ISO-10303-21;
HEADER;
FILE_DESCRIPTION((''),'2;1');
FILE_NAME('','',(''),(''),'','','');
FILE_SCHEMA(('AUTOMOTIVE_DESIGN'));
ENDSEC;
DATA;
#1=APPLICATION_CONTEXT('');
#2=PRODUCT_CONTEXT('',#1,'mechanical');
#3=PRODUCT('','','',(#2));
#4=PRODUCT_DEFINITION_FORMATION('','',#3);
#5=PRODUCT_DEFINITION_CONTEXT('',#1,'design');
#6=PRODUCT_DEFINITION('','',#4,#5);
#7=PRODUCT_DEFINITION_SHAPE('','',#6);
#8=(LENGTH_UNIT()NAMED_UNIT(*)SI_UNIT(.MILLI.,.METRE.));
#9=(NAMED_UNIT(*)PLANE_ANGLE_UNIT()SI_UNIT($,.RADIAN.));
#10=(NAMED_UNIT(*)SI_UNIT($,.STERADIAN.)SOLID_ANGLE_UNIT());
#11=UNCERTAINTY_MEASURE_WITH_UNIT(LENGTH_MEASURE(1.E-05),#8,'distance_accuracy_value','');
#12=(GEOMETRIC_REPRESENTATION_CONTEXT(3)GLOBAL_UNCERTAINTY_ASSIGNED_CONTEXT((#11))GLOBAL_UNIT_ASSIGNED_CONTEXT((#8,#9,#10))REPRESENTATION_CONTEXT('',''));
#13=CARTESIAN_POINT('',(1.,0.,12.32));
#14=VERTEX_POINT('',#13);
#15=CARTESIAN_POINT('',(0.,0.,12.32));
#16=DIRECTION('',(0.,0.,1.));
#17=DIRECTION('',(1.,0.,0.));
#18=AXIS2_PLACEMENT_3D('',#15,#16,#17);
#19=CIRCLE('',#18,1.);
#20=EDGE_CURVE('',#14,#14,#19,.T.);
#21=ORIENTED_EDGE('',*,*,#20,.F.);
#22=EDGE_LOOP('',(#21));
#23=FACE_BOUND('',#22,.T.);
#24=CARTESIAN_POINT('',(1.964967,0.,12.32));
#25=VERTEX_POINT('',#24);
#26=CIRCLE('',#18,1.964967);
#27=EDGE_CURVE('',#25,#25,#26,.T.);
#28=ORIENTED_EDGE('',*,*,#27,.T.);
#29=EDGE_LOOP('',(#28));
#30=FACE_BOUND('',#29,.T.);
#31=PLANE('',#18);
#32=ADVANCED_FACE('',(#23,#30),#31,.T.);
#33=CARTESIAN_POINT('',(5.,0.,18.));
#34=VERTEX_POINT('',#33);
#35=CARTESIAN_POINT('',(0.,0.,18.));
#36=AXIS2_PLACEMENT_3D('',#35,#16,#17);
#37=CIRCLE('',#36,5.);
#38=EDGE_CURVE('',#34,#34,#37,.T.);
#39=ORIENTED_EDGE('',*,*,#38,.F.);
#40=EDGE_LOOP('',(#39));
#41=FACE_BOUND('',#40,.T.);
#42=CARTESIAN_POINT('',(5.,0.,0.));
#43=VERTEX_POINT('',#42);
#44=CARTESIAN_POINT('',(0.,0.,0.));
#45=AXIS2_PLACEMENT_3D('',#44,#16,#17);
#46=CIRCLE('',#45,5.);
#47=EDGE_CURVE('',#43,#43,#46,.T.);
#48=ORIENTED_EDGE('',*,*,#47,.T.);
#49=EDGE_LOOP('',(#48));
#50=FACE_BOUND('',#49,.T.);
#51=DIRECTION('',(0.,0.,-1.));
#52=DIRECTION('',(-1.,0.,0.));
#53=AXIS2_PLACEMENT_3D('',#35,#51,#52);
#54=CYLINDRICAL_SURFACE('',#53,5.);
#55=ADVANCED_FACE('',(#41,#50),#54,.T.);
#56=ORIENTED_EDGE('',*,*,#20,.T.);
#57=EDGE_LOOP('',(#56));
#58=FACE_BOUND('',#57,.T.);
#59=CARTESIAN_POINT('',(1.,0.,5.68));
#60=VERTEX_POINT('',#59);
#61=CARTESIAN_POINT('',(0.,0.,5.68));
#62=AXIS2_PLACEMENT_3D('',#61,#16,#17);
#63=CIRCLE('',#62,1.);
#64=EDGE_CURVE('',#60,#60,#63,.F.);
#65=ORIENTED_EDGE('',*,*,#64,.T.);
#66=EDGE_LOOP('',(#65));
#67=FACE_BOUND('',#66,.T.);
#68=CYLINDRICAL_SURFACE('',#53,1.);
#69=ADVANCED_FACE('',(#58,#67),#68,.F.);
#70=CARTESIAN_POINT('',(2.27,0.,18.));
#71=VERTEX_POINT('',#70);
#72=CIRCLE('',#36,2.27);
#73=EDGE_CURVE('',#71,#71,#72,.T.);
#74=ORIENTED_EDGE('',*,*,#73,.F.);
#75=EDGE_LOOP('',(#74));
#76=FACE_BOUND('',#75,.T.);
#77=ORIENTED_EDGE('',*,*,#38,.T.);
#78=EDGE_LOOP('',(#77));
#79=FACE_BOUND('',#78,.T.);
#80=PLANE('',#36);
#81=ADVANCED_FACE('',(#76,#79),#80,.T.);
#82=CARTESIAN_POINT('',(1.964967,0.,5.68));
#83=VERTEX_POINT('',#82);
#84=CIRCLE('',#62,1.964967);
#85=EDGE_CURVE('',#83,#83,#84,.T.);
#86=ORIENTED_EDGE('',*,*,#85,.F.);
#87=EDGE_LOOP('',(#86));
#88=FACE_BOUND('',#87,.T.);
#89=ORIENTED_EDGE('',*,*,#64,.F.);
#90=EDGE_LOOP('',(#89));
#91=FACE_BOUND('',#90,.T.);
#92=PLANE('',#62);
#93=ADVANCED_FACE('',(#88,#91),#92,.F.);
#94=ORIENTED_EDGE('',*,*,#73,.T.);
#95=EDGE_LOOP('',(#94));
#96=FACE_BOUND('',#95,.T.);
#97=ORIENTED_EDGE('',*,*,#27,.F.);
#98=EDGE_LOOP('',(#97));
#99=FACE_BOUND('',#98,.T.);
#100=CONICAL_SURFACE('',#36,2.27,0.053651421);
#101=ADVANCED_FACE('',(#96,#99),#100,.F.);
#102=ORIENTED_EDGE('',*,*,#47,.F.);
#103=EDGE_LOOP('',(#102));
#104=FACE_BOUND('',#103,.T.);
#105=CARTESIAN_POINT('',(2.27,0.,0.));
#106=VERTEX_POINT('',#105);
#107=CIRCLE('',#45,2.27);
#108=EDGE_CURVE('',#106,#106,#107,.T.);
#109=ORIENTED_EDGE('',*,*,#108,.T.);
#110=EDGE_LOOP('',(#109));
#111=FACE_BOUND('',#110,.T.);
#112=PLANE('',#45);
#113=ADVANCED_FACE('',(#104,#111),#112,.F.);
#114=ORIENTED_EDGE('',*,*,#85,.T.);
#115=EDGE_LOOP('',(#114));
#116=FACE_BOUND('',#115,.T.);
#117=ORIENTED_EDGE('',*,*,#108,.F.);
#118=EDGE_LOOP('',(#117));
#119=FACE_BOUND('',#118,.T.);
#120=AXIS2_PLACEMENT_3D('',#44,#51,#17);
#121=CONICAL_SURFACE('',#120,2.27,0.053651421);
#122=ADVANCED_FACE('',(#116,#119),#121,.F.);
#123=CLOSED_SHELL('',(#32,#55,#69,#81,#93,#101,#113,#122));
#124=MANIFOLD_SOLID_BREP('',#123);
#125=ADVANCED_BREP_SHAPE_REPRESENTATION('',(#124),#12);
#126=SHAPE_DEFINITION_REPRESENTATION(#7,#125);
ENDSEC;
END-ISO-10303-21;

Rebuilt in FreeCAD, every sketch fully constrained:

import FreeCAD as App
import Part
import Sketcher

V = App.Vector
Q = App.Units.Quantity

doc = App.newDocument("Part")
body = doc.addObject("PartDesign::Body", "Body")

# Sketch on XY plane
sketch1 = body.newObject("Sketcher::SketchObject", "Sketch")
sketch1.AttachmentSupport = (doc.getObject("XY_Plane"), [""])
sketch1.MapMode = "FlatFace"
sketch1.addGeometry(Part.Circle(V(0, 0, 0), V(0, 0, 1), 5), False)
sketch1.addConstraint([
    Sketcher.Constraint("Coincident", 0, 3, -1, 1),
    Sketcher.Constraint("Diameter", 0, Q("10 mm")),
])
pad1 = body.newObject("PartDesign::Pad", "Pad")
pad1.Profile = sketch1
pad1.Length = 18

# Sketch on XY plane
sketch2 = body.newObject("Sketcher::SketchObject", "Sketch001")
sketch2.AttachmentSupport = (doc.getObject("XY_Plane"), [""])
sketch2.MapMode = "FlatFace"
sketch2.addGeometry(Part.Circle(V(0, 0, 0), V(0, 0, 1), 2.3), False)
sketch2.addConstraint([
    Sketcher.Constraint("Coincident", 0, 3, -1, 1),
    Sketcher.Constraint("Diameter", 0, Q("4.54 mm")),
])
pocket1 = body.newObject("PartDesign::Pocket", "Pocket")
pocket1.Profile = sketch2
pocket1.Length = 5.68
pocket1.Reversed = True
pocket1.TaperAngle = -3.074

# Sketch on XY plane
sketch3 = body.newObject("Sketcher::SketchObject", "Sketch002")
sketch3.AttachmentSupport = (doc.getObject("XY_Plane"), [""])
sketch3.MapMode = "FlatFace"
sketch3.addGeometry(Part.Circle(V(0, 0, 0), V(0, 0, 1), 1), False)
sketch3.addConstraint([
    Sketcher.Constraint("Coincident", 0, 3, -1, 1),
    Sketcher.Constraint("Diameter", 0, Q("2 mm")),
])
pocket2 = body.newObject("PartDesign::Pocket", "Pocket001")
pocket2.Profile = sketch3
pocket2.Type = "ThroughAll"
pocket2.Reversed = True

# Sketch on XY plane
sketch4 = body.newObject("Sketcher::SketchObject", "Sketch003")
sketch4.AttachmentSupport = (doc.getObject("XY_Plane"), [""])
sketch4.MapMode = "FlatFace"
sketch4.AttachmentOffset = App.Placement(V(0, 0, 18), App.Rotation())
sketch4.addGeometry(Part.Circle(V(0, 0, 0), V(0, 0, 1), 2.3), False)
sketch4.addConstraint([
    Sketcher.Constraint("Coincident", 0, 3, -1, 1),
    Sketcher.Constraint("Diameter", 0, Q("4.54 mm")),
])
pocket3 = body.newObject("PartDesign::Pocket", "Pocket002")
pocket3.Profile = sketch4
pocket3.Length = 5.68
pocket3.TaperAngle = -3.074

doc.recompute()
